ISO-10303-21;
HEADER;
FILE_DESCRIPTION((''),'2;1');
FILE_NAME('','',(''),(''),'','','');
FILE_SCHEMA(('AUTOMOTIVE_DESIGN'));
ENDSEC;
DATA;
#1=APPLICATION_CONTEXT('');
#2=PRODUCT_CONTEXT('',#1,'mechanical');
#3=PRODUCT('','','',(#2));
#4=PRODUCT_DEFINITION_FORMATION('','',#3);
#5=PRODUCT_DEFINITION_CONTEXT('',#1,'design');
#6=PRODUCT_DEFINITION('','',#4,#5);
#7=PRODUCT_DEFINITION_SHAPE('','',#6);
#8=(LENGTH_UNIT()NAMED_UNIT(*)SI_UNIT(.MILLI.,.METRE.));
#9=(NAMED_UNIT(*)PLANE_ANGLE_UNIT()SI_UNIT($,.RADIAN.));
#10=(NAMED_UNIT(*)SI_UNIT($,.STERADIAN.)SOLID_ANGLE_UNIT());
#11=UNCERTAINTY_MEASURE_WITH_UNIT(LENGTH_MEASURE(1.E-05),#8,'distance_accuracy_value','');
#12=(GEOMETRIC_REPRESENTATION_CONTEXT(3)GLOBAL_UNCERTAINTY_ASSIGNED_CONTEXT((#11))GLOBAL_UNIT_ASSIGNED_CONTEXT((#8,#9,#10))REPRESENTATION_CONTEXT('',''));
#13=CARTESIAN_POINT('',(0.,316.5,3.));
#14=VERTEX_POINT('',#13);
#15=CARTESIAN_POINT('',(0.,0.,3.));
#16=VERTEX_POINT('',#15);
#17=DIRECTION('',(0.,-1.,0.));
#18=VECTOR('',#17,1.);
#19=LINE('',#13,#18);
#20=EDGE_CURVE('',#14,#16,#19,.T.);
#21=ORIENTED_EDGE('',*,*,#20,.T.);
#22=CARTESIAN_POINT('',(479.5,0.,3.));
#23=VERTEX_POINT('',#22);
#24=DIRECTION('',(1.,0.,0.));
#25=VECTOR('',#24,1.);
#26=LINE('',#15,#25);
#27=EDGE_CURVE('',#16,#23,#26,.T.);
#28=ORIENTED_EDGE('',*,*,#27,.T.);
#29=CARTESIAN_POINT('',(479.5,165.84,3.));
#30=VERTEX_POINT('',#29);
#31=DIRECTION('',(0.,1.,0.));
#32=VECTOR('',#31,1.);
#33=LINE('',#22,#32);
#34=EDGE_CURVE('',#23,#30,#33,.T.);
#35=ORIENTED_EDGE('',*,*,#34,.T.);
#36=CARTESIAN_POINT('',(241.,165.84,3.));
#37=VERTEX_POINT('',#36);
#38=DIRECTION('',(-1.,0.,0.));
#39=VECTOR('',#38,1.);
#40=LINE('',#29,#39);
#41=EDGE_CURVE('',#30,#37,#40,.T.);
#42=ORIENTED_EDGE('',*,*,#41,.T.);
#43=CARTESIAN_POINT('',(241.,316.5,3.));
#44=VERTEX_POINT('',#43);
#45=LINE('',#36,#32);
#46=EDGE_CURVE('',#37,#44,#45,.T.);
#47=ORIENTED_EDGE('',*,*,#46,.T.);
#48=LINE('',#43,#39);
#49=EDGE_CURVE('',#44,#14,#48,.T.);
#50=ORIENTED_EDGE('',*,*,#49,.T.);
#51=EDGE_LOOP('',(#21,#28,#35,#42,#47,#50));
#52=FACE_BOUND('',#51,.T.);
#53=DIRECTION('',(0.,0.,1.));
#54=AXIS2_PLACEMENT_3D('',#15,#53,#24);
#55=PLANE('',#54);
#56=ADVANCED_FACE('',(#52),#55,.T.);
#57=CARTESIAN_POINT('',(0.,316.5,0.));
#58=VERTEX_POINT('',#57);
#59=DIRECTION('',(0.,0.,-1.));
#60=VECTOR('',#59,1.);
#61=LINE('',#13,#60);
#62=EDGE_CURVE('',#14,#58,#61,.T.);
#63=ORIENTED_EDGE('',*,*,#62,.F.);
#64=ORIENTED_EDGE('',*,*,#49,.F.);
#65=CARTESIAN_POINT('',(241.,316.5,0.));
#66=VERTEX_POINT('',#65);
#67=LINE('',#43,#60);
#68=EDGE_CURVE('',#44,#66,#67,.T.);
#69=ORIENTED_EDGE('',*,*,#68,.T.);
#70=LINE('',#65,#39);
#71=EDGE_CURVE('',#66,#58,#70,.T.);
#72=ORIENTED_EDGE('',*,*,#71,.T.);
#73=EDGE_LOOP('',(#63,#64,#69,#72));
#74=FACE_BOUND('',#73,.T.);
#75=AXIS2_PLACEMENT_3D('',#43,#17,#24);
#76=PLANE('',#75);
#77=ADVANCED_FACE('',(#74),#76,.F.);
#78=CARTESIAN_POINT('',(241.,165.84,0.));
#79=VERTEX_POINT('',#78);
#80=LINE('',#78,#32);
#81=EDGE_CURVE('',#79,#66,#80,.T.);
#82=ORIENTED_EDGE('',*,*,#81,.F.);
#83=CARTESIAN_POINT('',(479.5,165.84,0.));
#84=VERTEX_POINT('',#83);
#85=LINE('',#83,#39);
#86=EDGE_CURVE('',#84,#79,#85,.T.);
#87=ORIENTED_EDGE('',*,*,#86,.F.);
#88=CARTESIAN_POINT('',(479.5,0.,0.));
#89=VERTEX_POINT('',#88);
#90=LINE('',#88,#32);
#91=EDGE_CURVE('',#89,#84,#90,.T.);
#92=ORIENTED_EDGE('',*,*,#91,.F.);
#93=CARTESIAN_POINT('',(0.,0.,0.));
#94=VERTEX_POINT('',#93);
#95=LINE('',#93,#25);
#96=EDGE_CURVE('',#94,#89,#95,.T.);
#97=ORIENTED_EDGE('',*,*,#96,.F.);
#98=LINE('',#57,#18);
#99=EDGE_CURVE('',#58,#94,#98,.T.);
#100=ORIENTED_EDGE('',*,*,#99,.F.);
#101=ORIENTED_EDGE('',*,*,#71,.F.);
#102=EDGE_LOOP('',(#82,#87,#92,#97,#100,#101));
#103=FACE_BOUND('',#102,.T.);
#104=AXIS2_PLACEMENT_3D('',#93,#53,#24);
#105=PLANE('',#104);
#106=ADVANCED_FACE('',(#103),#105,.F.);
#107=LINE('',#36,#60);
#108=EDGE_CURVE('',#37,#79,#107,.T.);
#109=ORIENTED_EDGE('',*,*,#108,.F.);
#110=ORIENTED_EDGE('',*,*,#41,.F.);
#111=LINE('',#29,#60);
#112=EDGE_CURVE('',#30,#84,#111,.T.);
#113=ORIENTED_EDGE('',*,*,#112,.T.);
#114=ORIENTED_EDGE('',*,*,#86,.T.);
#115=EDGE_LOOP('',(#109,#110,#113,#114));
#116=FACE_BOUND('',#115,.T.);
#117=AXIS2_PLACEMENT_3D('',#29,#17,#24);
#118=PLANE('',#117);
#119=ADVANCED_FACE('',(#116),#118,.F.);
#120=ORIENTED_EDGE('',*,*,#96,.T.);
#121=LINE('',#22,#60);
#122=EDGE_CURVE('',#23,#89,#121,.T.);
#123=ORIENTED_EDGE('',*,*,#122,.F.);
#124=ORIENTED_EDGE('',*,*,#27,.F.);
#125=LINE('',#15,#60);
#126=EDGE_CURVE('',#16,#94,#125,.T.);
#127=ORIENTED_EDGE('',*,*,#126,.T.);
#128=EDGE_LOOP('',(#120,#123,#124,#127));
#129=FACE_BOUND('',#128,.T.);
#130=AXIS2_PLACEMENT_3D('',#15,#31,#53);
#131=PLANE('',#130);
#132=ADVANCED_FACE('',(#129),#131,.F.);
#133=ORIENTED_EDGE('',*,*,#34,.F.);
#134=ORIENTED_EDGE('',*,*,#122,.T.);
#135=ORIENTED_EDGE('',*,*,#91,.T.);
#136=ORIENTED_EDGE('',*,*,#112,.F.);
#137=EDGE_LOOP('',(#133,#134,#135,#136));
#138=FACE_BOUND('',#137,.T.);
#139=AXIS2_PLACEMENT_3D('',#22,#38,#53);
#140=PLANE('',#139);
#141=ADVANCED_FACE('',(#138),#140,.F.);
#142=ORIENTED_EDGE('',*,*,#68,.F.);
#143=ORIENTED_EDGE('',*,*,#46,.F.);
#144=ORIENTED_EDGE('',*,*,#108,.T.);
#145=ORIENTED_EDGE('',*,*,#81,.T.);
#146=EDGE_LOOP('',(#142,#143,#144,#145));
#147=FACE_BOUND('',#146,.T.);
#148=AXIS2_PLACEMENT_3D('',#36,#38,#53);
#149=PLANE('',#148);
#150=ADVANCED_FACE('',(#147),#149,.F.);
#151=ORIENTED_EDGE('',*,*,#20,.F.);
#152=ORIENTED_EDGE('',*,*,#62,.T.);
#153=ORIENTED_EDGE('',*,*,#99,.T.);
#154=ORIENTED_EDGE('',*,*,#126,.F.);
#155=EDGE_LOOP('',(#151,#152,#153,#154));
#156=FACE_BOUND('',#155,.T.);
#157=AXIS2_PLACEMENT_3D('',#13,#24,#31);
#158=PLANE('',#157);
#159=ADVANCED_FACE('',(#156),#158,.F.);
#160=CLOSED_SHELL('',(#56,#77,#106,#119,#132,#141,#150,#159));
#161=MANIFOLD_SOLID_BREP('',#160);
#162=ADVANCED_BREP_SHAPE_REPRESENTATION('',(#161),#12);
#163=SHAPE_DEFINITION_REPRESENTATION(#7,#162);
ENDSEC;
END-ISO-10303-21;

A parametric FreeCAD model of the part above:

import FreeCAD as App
import Part
import Sketcher

V = App.Vector
Q = App.Units.Quantity

doc = App.newDocument("Part")
body = doc.addObject("PartDesign::Body", "Body")

# Sketch on XY plane
sketch1 = doc.addObject("Sketcher::SketchObject", "Sketch")
body.addObject(sketch1)
sketch1.AttachmentSupport = (doc.XY_Plane, [""])
sketch1.MapMode = "FlatFace"
sketch1.addGeometry(Part.LineSegment(V(0, 0, 0), V(480, 0, 0)), False)
sketch1.addGeometry(Part.LineSegment(V(480, 0, 0), V(480, 166, 0)), False)
sketch1.addGeometry(Part.LineSegment(V(480, 166, 0), V(241, 166, 0)), False)
sketch1.addGeometry(Part.LineSegment(V(241, 166, 0), V(241, 316, 0)), False)
sketch1.addGeometry(Part.LineSegment(V(241, 316, 0), V(0, 316, 0)), False)
sketch1.addGeometry(Part.LineSegment(V(0, 316, 0), V(0, 0, 0)), False)
sketch1.addConstraint(Sketcher.Constraint("Coincident", 0, 2, 1, 1))
sketch1.addConstraint(Sketcher.Constraint("Coincident", 1, 2, 2, 1))
sketch1.addConstraint(Sketcher.Constraint("Coincident", 2, 2, 3, 1))
sketch1.addConstraint(Sketcher.Constraint("Coincident", 3, 2, 4, 1))
sketch1.addConstraint(Sketcher.Constraint("Coincident", 4, 2, 5, 1))
sketch1.addConstraint(Sketcher.Constraint("Coincident", 5, 2, 0, 1))
sketch1.addConstraint(Sketcher.Constraint("Horizontal", 0))
sketch1.addConstraint(Sketcher.Constraint("Vertical", 1))
sketch1.addConstraint(Sketcher.Constraint("Horizontal", 2))
sketch1.addConstraint(Sketcher.Constraint("Vertical", 3))
sketch1.addConstraint(Sketcher.Constraint("Horizontal", 4))
sketch1.addConstraint(Sketcher.Constraint("Vertical", 5))
sketch1.addConstraint(Sketcher.Constraint("Coincident", 5, 2, -1, 1))
sketch1.addConstraint(Sketcher.Constraint("DistanceX", 4, 2, 4, 1, Q("241 mm")))
sketch1.addConstraint(Sketcher.Constraint("DistanceX", 0, 1, 0, 2, Q("479.5 mm")))
sketch1.addConstraint(Sketcher.Constraint("DistanceY", 5, 2, 5, 1, Q("316.5 mm")))
sketch1.addConstraint(Sketcher.Constraint("DistanceY", 1, 1, 1, 2, Q("165.84 mm")))
pad1 = doc.addObject("PartDesign::Pad", "Pad")
body.addObject(pad1)
pad1.Profile = sketch1
pad1.Length = 3

doc.recompute()
